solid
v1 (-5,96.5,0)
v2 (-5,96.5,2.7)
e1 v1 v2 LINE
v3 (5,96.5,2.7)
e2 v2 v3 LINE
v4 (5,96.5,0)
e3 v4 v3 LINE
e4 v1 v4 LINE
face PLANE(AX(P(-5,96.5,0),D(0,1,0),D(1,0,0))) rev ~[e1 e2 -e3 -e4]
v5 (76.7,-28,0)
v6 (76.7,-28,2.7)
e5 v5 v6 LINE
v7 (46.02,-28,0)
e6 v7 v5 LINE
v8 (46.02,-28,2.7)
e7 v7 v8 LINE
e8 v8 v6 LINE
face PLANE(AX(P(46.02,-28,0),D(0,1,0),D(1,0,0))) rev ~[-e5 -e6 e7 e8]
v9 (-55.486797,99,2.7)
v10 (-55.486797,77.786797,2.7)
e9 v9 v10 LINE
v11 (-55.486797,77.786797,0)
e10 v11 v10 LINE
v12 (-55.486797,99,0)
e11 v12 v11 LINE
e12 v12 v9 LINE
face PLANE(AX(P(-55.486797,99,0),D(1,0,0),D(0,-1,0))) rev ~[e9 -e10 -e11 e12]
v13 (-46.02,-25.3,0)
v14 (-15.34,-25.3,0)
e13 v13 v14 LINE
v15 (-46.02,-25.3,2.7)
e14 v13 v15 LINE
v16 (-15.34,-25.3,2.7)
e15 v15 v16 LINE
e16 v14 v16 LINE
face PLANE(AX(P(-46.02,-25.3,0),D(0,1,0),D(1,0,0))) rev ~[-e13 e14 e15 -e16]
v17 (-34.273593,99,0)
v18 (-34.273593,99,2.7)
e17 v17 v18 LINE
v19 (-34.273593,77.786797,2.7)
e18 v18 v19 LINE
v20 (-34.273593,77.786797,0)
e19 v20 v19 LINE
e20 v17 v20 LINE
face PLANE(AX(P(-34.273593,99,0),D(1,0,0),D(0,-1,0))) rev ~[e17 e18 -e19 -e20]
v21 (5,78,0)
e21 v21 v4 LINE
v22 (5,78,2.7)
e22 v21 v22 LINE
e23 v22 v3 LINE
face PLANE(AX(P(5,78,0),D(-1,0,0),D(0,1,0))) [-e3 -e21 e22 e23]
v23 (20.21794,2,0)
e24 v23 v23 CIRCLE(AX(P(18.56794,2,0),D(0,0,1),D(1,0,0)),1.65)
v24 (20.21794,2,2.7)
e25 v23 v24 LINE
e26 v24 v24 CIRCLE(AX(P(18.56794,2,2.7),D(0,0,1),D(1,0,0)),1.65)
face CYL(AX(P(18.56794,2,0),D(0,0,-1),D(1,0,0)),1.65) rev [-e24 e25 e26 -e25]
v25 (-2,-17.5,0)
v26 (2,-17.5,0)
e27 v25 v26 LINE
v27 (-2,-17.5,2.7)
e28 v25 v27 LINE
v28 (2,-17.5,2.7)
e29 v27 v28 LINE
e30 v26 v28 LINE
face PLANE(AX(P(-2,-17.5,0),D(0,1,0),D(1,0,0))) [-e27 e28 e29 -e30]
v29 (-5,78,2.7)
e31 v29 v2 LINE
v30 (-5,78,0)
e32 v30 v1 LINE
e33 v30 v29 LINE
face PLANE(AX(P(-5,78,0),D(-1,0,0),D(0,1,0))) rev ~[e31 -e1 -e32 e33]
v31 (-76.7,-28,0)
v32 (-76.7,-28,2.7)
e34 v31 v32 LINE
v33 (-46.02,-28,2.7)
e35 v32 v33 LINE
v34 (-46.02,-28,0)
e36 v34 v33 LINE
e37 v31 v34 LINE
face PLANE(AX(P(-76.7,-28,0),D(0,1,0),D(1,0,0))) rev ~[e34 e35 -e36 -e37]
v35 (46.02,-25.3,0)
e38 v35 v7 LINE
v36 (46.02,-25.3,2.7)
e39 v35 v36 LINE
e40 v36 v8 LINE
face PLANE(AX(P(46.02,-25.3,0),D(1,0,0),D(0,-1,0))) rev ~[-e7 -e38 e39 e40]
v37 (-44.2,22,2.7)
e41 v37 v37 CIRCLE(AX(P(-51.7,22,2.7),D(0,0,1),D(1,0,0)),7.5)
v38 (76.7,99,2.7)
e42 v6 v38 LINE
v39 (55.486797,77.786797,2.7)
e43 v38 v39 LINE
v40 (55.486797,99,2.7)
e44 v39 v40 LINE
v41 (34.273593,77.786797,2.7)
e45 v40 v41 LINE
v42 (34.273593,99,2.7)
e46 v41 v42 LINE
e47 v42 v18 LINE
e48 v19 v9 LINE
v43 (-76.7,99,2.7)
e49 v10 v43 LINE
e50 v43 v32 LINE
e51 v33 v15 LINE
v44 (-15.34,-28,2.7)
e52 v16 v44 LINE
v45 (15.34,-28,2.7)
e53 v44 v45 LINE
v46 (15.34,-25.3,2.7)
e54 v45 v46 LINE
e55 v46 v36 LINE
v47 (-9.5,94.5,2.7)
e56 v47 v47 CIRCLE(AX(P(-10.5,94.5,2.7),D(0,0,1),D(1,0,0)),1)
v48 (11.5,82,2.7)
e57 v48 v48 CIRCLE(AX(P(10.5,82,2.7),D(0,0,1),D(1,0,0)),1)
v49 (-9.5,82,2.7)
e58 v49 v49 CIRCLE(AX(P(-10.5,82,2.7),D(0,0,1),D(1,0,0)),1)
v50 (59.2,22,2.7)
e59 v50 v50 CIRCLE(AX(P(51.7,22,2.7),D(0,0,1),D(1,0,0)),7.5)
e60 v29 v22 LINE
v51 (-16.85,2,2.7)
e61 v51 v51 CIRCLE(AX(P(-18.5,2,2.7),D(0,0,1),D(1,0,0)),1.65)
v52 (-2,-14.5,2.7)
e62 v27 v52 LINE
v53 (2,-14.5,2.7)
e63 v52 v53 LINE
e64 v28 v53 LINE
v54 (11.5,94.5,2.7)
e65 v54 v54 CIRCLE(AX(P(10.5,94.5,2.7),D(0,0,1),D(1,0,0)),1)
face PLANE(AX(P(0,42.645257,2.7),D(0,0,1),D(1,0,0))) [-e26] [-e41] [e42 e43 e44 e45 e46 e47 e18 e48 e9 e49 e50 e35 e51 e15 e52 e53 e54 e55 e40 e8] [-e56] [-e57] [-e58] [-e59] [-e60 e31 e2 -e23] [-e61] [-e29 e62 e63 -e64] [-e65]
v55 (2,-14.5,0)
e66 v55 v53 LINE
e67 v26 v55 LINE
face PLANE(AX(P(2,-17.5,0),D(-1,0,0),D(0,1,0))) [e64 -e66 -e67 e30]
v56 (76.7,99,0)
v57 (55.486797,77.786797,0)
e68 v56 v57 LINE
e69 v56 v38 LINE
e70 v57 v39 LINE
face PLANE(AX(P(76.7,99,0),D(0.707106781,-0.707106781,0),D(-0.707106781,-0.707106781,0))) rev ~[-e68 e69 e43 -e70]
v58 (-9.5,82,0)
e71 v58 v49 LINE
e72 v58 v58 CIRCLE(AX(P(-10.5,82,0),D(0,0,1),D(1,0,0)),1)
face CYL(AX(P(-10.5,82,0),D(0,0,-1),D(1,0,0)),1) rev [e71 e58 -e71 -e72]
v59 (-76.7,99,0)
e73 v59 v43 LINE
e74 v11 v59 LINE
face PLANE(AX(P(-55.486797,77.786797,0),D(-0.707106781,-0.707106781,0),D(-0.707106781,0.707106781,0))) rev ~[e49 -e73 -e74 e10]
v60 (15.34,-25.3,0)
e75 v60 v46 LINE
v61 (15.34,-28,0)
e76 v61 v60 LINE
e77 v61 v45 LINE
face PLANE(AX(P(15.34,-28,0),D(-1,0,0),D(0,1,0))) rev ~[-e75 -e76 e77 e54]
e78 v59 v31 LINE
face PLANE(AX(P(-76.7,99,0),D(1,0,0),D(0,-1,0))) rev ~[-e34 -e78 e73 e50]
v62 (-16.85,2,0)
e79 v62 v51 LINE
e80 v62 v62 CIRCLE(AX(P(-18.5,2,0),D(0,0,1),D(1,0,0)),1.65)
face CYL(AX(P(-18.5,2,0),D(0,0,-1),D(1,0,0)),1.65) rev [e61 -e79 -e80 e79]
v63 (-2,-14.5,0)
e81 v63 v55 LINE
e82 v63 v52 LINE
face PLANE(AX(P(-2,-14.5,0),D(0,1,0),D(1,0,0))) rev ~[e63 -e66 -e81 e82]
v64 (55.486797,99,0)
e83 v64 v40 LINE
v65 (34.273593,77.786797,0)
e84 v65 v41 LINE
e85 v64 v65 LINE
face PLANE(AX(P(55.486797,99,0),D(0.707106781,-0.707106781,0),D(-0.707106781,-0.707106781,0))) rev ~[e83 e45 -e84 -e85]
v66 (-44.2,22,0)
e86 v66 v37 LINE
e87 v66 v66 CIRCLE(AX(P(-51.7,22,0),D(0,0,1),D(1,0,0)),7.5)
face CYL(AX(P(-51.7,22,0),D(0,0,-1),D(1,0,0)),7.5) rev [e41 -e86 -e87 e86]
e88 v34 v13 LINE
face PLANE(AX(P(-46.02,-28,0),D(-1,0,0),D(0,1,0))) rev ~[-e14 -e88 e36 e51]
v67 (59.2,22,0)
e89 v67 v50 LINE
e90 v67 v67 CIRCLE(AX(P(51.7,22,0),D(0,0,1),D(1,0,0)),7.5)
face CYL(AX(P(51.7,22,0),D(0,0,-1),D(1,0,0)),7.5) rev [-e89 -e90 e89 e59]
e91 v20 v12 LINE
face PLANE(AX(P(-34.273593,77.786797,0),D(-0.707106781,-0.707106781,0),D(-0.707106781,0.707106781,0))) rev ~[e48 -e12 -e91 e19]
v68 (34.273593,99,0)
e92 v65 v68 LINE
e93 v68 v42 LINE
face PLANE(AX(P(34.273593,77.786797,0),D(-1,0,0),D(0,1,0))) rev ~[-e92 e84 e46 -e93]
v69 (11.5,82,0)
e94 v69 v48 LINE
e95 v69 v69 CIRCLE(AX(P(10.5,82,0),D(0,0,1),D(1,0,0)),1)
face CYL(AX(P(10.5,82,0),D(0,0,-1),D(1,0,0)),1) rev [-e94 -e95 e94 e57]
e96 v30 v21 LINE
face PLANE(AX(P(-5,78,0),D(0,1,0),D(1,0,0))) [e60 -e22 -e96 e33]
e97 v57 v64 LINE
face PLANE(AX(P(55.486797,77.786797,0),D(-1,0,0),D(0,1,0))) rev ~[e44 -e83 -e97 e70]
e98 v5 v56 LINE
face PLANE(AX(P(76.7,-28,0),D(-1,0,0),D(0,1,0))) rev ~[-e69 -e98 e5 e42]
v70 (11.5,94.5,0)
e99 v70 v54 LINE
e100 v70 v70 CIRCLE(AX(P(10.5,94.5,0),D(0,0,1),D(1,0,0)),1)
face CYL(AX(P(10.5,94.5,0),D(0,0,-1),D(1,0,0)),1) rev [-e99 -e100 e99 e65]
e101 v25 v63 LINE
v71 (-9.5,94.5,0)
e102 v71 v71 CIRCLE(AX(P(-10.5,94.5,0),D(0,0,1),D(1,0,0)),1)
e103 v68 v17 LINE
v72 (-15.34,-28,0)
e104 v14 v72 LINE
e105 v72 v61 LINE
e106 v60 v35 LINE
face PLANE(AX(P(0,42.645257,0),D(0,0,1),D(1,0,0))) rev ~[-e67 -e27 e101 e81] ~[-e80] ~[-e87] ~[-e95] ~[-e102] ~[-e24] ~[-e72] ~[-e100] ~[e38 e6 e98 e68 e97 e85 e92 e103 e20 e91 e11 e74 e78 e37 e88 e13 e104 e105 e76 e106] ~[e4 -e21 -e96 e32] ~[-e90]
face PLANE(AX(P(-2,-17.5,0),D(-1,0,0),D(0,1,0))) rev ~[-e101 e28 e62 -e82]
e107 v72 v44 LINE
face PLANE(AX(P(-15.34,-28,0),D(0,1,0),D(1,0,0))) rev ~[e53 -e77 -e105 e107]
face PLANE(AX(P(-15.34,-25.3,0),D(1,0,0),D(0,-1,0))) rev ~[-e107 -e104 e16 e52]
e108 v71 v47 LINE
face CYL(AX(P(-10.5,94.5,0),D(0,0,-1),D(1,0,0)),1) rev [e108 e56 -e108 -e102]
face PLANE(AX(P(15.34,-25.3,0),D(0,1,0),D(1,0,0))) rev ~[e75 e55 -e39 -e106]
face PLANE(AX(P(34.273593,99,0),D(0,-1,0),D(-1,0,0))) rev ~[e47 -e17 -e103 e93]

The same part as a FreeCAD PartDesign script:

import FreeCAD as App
import Part
import Sketcher
from FreeCAD import Vector
Q = App.Units.Quantity

doc = App.newDocument("Part")
body = doc.addObject("PartDesign::Body", "Body")

sketch1 = doc.addObject("Sketcher::SketchObject", "Sketch")
body.addObject(sketch1)
sketch1.AttachmentSupport = (doc.XY_Plane, [""])
sketch1.MapMode = "FlatFace"
sketch1.addGeometry(Part.LineSegment(Vector(-46.02, -28, 0), Vector(-46.02, -25.3, 0)), False)
sketch1.addGeometry(Part.LineSegment(Vector(-46.02, -25.3, 0), Vector(-15.34, -25.3, 0)), False)
sketch1.addGeometry(Part.LineSegment(Vector(-15.34, -25.3, 0), Vector(-15.34, -28, 0)), False)
sketch1.addGeometry(Part.LineSegment(Vector(-15.34, -28, 0), Vector(15.34, -28, 0)), False)
sketch1.addGeometry(Part.LineSegment(Vector(15.34, -28, 0), Vector(15.34, -25.3, 0)), False)
sketch1.addGeometry(Part.LineSegment(Vector(15.34, -25.3, 0), Vector(46.02, -25.3, 0)), False)
sketch1.addGeometry(Part.LineSegment(Vector(46.02, -25.3, 0), Vector(46.02, -28, 0)), False)
sketch1.addGeometry(Part.LineSegment(Vector(46.02, -28, 0), Vector(76.7, -28, 0)), False)
sketch1.addGeometry(Part.LineSegment(Vector(76.7, -28, 0), Vector(76.7, 99, 0)), False)
sketch1.addGeometry(Part.LineSegment(Vector(76.7, 99, 0), Vector(55.486797, 77.786797, 0)), False)
sketch1.addGeometry(Part.LineSegment(Vector(55.486797, 77.786797, 0), Vector(55.486797, 99, 0)), False)
sketch1.addGeometry(Part.LineSegment(Vector(55.486797, 99, 0), Vector(34.273593, 77.786797, 0)), False)
sketch1.addGeometry(Part.LineSegment(Vector(34.273593, 77.786797, 0), Vector(34.273593, 99, 0)), False)
sketch1.addGeometry(Part.LineSegment(Vector(34.273593, 99, 0), Vector(-34.273593, 99, 0)), False)
sketch1.addGeometry(Part.LineSegment(Vector(-34.273593, 99, 0), Vector(-34.273593, 77.786797, 0)), False)
sketch1.addGeometry(Part.LineSegment(Vector(-34.273593, 77.786797, 0), Vector(-55.486797, 99, 0)), False)
sketch1.addGeometry(Part.LineSegment(Vector(-55.486797, 99, 0), Vector(-55.486797, 77.786797, 0)), False)
sketch1.addGeometry(Part.LineSegment(Vector(-55.486797, 77.786797, 0), Vector(-76.7, 99, 0)), False)
sketch1.addGeometry(Part.LineSegment(Vector(-76.7, 99, 0), Vector(-76.7, -28, 0)), False)
sketch1.addGeometry(Part.LineSegment(Vector(-76.7, -28, 0), Vector(-46.02, -28, 0)), False)
sketch1.addGeometry(Part.LineSegment(Vector(2, -17.5, 0), Vector(-2, -17.5, 0)), False)
sketch1.addGeometry(Part.LineSegment(Vector(-2, -17.5, 0), Vector(-2, -14.5, 0)), False)
sketch1.addGeometry(Part.LineSegment(Vector(-2, -14.5, 0), Vector(2, -14.5, 0)), False)
sketch1.addGeometry(Part.LineSegment(Vector(2, -14.5, 0), Vector(2, -17.5, 0)), False)
sketch1.addGeometry(Part.Circle(Vector(-18.5, 2, 0), Vector(0, 0, 1), 1.65), False)
sketch1.addGeometry(Part.Circle(Vector(-51.7, 22, 0), Vector(0, 0, 1), 7.5), False)
sketch1.addGeometry(Part.Circle(Vector(18.56794, 2, 0), Vector(0, 0, 1), 1.65), False)
sketch1.addGeometry(Part.Circle(Vector(51.7, 22, 0), Vector(0, 0, 1), 7.5), False)
sketch1.addGeometry(Part.Circle(Vector(-10.5, 82, 0), Vector(0, 0, 1), 1), False)
sketch1.addGeometry(Part.LineSegment(Vector(5, 78, 0), Vector(-5, 78, 0)), False)
sketch1.addGeometry(Part.LineSegment(Vector(-5, 78, 0), Vector(-5, 96.5, 0)), False)
sketch1.addGeometry(Part.LineSegment(Vector(-5, 96.5, 0), Vector(5, 96.5, 0)), False)
sketch1.addGeometry(Part.LineSegment(Vector(5, 96.5, 0), Vector(5, 78, 0)), False)
sketch1.addGeometry(Part.Circle(Vector(-10.5, 94.5, 0), Vector(0, 0, 1), 1), False)
sketch1.addGeometry(Part.Circle(Vector(10.5, 82, 0), Vector(0, 0, 1), 1), False)
sketch1.addGeometry(Part.Circle(Vector(10.5, 94.5, 0), Vector(0, 0, 1), 1), False)
sketch1.addConstraint(Sketcher.Constraint("Coincident", 0, 2, 1, 1))
sketch1.addConstraint(Sketcher.Constraint("Coincident", 1, 2, 2, 1))
sketch1.addConstraint(Sketcher.Constraint("Coincident", 2, 2, 3, 1))
sketch1.addConstraint(Sketcher.Constraint("Coincident", 3, 2, 4, 1))
sketch1.addConstraint(Sketcher.Constraint("Coincident", 4, 2, 5, 1))
sketch1.addConstraint(Sketcher.Constraint("Coincident", 5, 2, 6, 1))
sketch1.addConstraint(Sketcher.Constraint("Coincident", 6, 2, 7, 1))
sketch1.addConstraint(Sketcher.Constraint("Coincident", 7, 2, 8, 1))
sketch1.addConstraint(Sketcher.Constraint("Coincident", 8, 2, 9, 1))
sketch1.addConstraint(Sketcher.Constraint("Coincident", 9, 2, 10, 1))
sketch1.addConstraint(Sketcher.Constraint("Coincident", 10, 2, 11, 1))
sketch1.addConstraint(Sketcher.Constraint("Coincident", 11, 2, 12, 1))
sketch1.addConstraint(Sketcher.Constraint("Coincident", 12, 2, 13, 1))
sketch1.addConstraint(Sketcher.Constraint("Coincident", 13, 2, 14, 1))
sketch1.addConstraint(Sketcher.Constraint("Coincident", 14, 2, 15, 1))
sketch1.addConstraint(Sketcher.Constraint("Coincident", 15, 2, 16, 1))
sketch1.addConstraint(Sketcher.Constraint("Coincident", 16, 2, 17, 1))
sketch1.addConstraint(Sketcher.Constraint("Coincident", 17, 2, 18, 1))
sketch1.addConstraint(Sketcher.Constraint("Coincident", 18, 2, 19, 1))
sketch1.addConstraint(Sketcher.Constraint("Coincident", 19, 2, 0, 1))
sketch1.addConstraint(Sketcher.Constraint("Coincident", 20, 2, 21, 1))
sketch1.addConstraint(Sketcher.Constraint("Coincident", 21, 2, 22, 1))
sketch1.addConstraint(Sketcher.Constraint("Coincident", 22, 2, 23, 1))
sketch1.addConstraint(Sketcher.Constraint("Coincident", 23, 2, 20, 1))
sketch1.addConstraint(Sketcher.Constraint("Coincident", 29, 2, 30, 1))
sketch1.addConstraint(Sketcher.Constraint("Coincident", 30, 2, 31, 1))
sketch1.addConstraint(Sketcher.Constraint("Coincident", 31, 2, 32, 1))
sketch1.addConstraint(Sketcher.Constraint("Coincident", 32, 2, 29, 1))
sketch1.addConstraint(Sketcher.Constraint("Vertical", 0))
sketch1.addConstraint(Sketcher.Constraint("Horizontal", 1))
sketch1.addConstraint(Sketcher.Constraint("Vertical", 2))
sketch1.addConstraint(Sketcher.Constraint("Horizontal", 3))
sketch1.addConstraint(Sketcher.Constraint("Vertical", 4))
sketch1.addConstraint(Sketcher.Constraint("Horizontal", 5))
sketch1.addConstraint(Sketcher.Constraint("Vertical", 6))
sketch1.addConstraint(Sketcher.Constraint("Horizontal", 7))
sketch1.addConstraint(Sketcher.Constraint("Vertical", 8))
sketch1.addConstraint(Sketcher.Constraint("Vertical", 10))
sketch1.addConstraint(Sketcher.Constraint("Vertical", 12))
sketch1.addConstraint(Sketcher.Constraint("Horizontal", 13))
sketch1.addConstraint(Sketcher.Constraint("Vertical", 14))
sketch1.addConstraint(Sketcher.Constraint("Vertical", 16))
sketch1.addConstraint(Sketcher.Constraint("Vertical", 18))
sketch1.addConstraint(Sketcher.Constraint("Horizontal", 19))
sketch1.addConstraint(Sketcher.Constraint("Horizontal", 20))
sketch1.addConstraint(Sketcher.Constraint("Vertical", 21))
sketch1.addConstraint(Sketcher.Constraint("Horizontal", 22))
sketch1.addConstraint(Sketcher.Constraint("Vertical", 23))
sketch1.addConstraint(Sketcher.Constraint("Horizontal", 29))
sketch1.addConstraint(Sketcher.Constraint("Vertical", 30))
sketch1.addConstraint(Sketcher.Constraint("Horizontal", 31))
sketch1.addConstraint(Sketcher.Constraint("Vertical", 32))
sketch1.addConstraint(Sketcher.Constraint("Equal", 24, 26))
sketch1.addConstraint(Sketcher.Constraint("Equal", 25, 27))
sketch1.addConstraint(Sketcher.Constraint("Equal", 28, 33))
sketch1.addConstraint(Sketcher.Constraint("Equal", 33, 34))
sketch1.addConstraint(Sketcher.Constraint("Equal", 34, 35))
sketch1.addConstraint(Sketcher.Constraint("Symmetric", 25, 3, 27, 3, -2))
sketch1.addConstraint(Sketcher.Constraint("Symmetric", 28, 3, 34, 3, -2))
sketch1.addConstraint(Sketcher.Constraint("Symmetric", 33, 3, 35, 3, -2))
sketch1.addConstraint(Sketcher.Constraint("Symmetric", 1, 2, 4, 2, -2))
sketch1.addConstraint(Sketcher.Constraint("Symmetric", 11, 2, 14, 2, -2))
sketch1.addConstraint(Sketcher.Constraint("Symmetric", 10, 2, 15, 2, -2))
sketch1.addConstraint(Sketcher.Constraint("Symmetric", 8, 2, 17, 2, -2))
sketch1.addConstraint(Sketcher.Constraint("Symmetric", 6, 2, 19, 2, -2))
sketch1.addConstraint(Sketcher.Constraint("Parallel", 9, 11))
sketch1.addConstraint(Sketcher.Constraint("Perpendicular", 11, 15))
sketch1.addConstraint(Sketcher.Constraint("Parallel", 15, 17))
sketch1.addConstraint(Sketcher.Constraint("Horizontal", 24, 3, 26, 3))
sketch1.addConstraint(Sketcher.Constraint("Horizontal", 3, 2, 6, 2))
sketch1.addConstraint(Sketcher.Constraint("Horizontal", 8, 2, 10, 2))
sketch1.addConstraint(Sketcher.Constraint("Horizontal", 9, 2, 11, 2))
sketch1.addConstraint(Sketcher.Constraint("Horizontal", 10, 2, 12, 2))
sketch1.addConstraint(Sketcher.Constraint("Vertical", 28, 3, 33, 3))
sketch1.addConstraint(Sketcher.Constraint("Equal", 1, 3))
sketch1.addConstraint(Sketcher.Constraint("Equal", 5, 7))
sketch1.addConstraint(Sketcher.Constraint("Diameter", 25, Q("15 mm")))
sketch1.addConstraint(Sketcher.Constraint("Diameter", 28, Q("2 mm")))
sketch1.addConstraint(Sketcher.Constraint("Diameter", 24, Q("3.3 mm")))
sketch1.addConstraint(Sketcher.Constraint("DistanceX", 20, 2, 20, 1, Q("4 mm")))
sketch1.addConstraint(Sketcher.Constraint("DistanceX", 29, 2, 29, 1, Q("10 mm")))
sketch1.addConstraint(Sketcher.Constraint("DistanceY", 8, 1, 8, 2, Q("127 mm")))
sketch1.addConstraint(Sketcher.Constraint("DistanceY", 21, 1, 21, 2, Q("3 mm")))
sketch1.addConstraint(Sketcher.Constraint("Distance", 9, Q("30 mm")))
sketch1.addConstraint(Sketcher.Constraint("DistanceY", 0, 1, 0, 2, Q("2.7 mm")))
sketch1.addConstraint(Sketcher.Constraint("DistanceY", 30, 1, 30, 2, Q("18.5 mm")))
sketch1.addConstraint(Sketcher.Constraint("DistanceY", -1, 1, 24, 3, Q("2 mm")))
sketch1.addConstraint(Sketcher.Constraint("DistanceY", -1, 1, 25, 3, Q("22 mm")))
sketch1.addConstraint(Sketcher.Constraint("DistanceY", -1, 1, 28, 3, Q("82 mm")))
sketch1.addConstraint(Sketcher.Constraint("DistanceY", 2, 2, -1, 1, Q("28 mm")))
sketch1.addConstraint(Sketcher.Constraint("DistanceX", 20, 2, -1, 1, Q("2 mm")))
sketch1.addConstraint(Sketcher.Constraint("DistanceX", 29, 2, -1, 1, Q("5 mm")))
sketch1.addConstraint(Sketcher.Constraint("DistanceY", -1, 1, 29, 2, Q("78 mm")))
sketch1.addConstraint(Sketcher.Constraint("DistanceX", 24, 3, 28, 3, Q("8 mm")))
sketch1.addConstraint(Sketcher.Constraint("DistanceX", 28, 3, 34, 3, Q("21 mm")))
sketch1.addConstraint(Sketcher.Constraint("DistanceX", 27, 3, 7, 2, Q("25 mm")))
sketch1.addConstraint(Sketcher.Constraint("DistanceY", 33, 3, 30, 2, Q("2 mm")))
sketch1.addConstraint(Sketcher.Constraint("DistanceX", 1, 1, 1, 2, Q("30.68 mm")))
sketch1.addConstraint(Sketcher.Constraint("DistanceY", 20, 2, -1, 1, Q("17.5 mm")))
sketch1.addConstraint(Sketcher.Constraint("DistanceX", -1, 1, 26, 3, Q("18.56794 mm")))
pad1 = doc.addObject("PartDesign::Pad", "Pad")
body.addObject(pad1)
pad1.Profile = sketch1
pad1.Length = 2.7

doc.recompute()
